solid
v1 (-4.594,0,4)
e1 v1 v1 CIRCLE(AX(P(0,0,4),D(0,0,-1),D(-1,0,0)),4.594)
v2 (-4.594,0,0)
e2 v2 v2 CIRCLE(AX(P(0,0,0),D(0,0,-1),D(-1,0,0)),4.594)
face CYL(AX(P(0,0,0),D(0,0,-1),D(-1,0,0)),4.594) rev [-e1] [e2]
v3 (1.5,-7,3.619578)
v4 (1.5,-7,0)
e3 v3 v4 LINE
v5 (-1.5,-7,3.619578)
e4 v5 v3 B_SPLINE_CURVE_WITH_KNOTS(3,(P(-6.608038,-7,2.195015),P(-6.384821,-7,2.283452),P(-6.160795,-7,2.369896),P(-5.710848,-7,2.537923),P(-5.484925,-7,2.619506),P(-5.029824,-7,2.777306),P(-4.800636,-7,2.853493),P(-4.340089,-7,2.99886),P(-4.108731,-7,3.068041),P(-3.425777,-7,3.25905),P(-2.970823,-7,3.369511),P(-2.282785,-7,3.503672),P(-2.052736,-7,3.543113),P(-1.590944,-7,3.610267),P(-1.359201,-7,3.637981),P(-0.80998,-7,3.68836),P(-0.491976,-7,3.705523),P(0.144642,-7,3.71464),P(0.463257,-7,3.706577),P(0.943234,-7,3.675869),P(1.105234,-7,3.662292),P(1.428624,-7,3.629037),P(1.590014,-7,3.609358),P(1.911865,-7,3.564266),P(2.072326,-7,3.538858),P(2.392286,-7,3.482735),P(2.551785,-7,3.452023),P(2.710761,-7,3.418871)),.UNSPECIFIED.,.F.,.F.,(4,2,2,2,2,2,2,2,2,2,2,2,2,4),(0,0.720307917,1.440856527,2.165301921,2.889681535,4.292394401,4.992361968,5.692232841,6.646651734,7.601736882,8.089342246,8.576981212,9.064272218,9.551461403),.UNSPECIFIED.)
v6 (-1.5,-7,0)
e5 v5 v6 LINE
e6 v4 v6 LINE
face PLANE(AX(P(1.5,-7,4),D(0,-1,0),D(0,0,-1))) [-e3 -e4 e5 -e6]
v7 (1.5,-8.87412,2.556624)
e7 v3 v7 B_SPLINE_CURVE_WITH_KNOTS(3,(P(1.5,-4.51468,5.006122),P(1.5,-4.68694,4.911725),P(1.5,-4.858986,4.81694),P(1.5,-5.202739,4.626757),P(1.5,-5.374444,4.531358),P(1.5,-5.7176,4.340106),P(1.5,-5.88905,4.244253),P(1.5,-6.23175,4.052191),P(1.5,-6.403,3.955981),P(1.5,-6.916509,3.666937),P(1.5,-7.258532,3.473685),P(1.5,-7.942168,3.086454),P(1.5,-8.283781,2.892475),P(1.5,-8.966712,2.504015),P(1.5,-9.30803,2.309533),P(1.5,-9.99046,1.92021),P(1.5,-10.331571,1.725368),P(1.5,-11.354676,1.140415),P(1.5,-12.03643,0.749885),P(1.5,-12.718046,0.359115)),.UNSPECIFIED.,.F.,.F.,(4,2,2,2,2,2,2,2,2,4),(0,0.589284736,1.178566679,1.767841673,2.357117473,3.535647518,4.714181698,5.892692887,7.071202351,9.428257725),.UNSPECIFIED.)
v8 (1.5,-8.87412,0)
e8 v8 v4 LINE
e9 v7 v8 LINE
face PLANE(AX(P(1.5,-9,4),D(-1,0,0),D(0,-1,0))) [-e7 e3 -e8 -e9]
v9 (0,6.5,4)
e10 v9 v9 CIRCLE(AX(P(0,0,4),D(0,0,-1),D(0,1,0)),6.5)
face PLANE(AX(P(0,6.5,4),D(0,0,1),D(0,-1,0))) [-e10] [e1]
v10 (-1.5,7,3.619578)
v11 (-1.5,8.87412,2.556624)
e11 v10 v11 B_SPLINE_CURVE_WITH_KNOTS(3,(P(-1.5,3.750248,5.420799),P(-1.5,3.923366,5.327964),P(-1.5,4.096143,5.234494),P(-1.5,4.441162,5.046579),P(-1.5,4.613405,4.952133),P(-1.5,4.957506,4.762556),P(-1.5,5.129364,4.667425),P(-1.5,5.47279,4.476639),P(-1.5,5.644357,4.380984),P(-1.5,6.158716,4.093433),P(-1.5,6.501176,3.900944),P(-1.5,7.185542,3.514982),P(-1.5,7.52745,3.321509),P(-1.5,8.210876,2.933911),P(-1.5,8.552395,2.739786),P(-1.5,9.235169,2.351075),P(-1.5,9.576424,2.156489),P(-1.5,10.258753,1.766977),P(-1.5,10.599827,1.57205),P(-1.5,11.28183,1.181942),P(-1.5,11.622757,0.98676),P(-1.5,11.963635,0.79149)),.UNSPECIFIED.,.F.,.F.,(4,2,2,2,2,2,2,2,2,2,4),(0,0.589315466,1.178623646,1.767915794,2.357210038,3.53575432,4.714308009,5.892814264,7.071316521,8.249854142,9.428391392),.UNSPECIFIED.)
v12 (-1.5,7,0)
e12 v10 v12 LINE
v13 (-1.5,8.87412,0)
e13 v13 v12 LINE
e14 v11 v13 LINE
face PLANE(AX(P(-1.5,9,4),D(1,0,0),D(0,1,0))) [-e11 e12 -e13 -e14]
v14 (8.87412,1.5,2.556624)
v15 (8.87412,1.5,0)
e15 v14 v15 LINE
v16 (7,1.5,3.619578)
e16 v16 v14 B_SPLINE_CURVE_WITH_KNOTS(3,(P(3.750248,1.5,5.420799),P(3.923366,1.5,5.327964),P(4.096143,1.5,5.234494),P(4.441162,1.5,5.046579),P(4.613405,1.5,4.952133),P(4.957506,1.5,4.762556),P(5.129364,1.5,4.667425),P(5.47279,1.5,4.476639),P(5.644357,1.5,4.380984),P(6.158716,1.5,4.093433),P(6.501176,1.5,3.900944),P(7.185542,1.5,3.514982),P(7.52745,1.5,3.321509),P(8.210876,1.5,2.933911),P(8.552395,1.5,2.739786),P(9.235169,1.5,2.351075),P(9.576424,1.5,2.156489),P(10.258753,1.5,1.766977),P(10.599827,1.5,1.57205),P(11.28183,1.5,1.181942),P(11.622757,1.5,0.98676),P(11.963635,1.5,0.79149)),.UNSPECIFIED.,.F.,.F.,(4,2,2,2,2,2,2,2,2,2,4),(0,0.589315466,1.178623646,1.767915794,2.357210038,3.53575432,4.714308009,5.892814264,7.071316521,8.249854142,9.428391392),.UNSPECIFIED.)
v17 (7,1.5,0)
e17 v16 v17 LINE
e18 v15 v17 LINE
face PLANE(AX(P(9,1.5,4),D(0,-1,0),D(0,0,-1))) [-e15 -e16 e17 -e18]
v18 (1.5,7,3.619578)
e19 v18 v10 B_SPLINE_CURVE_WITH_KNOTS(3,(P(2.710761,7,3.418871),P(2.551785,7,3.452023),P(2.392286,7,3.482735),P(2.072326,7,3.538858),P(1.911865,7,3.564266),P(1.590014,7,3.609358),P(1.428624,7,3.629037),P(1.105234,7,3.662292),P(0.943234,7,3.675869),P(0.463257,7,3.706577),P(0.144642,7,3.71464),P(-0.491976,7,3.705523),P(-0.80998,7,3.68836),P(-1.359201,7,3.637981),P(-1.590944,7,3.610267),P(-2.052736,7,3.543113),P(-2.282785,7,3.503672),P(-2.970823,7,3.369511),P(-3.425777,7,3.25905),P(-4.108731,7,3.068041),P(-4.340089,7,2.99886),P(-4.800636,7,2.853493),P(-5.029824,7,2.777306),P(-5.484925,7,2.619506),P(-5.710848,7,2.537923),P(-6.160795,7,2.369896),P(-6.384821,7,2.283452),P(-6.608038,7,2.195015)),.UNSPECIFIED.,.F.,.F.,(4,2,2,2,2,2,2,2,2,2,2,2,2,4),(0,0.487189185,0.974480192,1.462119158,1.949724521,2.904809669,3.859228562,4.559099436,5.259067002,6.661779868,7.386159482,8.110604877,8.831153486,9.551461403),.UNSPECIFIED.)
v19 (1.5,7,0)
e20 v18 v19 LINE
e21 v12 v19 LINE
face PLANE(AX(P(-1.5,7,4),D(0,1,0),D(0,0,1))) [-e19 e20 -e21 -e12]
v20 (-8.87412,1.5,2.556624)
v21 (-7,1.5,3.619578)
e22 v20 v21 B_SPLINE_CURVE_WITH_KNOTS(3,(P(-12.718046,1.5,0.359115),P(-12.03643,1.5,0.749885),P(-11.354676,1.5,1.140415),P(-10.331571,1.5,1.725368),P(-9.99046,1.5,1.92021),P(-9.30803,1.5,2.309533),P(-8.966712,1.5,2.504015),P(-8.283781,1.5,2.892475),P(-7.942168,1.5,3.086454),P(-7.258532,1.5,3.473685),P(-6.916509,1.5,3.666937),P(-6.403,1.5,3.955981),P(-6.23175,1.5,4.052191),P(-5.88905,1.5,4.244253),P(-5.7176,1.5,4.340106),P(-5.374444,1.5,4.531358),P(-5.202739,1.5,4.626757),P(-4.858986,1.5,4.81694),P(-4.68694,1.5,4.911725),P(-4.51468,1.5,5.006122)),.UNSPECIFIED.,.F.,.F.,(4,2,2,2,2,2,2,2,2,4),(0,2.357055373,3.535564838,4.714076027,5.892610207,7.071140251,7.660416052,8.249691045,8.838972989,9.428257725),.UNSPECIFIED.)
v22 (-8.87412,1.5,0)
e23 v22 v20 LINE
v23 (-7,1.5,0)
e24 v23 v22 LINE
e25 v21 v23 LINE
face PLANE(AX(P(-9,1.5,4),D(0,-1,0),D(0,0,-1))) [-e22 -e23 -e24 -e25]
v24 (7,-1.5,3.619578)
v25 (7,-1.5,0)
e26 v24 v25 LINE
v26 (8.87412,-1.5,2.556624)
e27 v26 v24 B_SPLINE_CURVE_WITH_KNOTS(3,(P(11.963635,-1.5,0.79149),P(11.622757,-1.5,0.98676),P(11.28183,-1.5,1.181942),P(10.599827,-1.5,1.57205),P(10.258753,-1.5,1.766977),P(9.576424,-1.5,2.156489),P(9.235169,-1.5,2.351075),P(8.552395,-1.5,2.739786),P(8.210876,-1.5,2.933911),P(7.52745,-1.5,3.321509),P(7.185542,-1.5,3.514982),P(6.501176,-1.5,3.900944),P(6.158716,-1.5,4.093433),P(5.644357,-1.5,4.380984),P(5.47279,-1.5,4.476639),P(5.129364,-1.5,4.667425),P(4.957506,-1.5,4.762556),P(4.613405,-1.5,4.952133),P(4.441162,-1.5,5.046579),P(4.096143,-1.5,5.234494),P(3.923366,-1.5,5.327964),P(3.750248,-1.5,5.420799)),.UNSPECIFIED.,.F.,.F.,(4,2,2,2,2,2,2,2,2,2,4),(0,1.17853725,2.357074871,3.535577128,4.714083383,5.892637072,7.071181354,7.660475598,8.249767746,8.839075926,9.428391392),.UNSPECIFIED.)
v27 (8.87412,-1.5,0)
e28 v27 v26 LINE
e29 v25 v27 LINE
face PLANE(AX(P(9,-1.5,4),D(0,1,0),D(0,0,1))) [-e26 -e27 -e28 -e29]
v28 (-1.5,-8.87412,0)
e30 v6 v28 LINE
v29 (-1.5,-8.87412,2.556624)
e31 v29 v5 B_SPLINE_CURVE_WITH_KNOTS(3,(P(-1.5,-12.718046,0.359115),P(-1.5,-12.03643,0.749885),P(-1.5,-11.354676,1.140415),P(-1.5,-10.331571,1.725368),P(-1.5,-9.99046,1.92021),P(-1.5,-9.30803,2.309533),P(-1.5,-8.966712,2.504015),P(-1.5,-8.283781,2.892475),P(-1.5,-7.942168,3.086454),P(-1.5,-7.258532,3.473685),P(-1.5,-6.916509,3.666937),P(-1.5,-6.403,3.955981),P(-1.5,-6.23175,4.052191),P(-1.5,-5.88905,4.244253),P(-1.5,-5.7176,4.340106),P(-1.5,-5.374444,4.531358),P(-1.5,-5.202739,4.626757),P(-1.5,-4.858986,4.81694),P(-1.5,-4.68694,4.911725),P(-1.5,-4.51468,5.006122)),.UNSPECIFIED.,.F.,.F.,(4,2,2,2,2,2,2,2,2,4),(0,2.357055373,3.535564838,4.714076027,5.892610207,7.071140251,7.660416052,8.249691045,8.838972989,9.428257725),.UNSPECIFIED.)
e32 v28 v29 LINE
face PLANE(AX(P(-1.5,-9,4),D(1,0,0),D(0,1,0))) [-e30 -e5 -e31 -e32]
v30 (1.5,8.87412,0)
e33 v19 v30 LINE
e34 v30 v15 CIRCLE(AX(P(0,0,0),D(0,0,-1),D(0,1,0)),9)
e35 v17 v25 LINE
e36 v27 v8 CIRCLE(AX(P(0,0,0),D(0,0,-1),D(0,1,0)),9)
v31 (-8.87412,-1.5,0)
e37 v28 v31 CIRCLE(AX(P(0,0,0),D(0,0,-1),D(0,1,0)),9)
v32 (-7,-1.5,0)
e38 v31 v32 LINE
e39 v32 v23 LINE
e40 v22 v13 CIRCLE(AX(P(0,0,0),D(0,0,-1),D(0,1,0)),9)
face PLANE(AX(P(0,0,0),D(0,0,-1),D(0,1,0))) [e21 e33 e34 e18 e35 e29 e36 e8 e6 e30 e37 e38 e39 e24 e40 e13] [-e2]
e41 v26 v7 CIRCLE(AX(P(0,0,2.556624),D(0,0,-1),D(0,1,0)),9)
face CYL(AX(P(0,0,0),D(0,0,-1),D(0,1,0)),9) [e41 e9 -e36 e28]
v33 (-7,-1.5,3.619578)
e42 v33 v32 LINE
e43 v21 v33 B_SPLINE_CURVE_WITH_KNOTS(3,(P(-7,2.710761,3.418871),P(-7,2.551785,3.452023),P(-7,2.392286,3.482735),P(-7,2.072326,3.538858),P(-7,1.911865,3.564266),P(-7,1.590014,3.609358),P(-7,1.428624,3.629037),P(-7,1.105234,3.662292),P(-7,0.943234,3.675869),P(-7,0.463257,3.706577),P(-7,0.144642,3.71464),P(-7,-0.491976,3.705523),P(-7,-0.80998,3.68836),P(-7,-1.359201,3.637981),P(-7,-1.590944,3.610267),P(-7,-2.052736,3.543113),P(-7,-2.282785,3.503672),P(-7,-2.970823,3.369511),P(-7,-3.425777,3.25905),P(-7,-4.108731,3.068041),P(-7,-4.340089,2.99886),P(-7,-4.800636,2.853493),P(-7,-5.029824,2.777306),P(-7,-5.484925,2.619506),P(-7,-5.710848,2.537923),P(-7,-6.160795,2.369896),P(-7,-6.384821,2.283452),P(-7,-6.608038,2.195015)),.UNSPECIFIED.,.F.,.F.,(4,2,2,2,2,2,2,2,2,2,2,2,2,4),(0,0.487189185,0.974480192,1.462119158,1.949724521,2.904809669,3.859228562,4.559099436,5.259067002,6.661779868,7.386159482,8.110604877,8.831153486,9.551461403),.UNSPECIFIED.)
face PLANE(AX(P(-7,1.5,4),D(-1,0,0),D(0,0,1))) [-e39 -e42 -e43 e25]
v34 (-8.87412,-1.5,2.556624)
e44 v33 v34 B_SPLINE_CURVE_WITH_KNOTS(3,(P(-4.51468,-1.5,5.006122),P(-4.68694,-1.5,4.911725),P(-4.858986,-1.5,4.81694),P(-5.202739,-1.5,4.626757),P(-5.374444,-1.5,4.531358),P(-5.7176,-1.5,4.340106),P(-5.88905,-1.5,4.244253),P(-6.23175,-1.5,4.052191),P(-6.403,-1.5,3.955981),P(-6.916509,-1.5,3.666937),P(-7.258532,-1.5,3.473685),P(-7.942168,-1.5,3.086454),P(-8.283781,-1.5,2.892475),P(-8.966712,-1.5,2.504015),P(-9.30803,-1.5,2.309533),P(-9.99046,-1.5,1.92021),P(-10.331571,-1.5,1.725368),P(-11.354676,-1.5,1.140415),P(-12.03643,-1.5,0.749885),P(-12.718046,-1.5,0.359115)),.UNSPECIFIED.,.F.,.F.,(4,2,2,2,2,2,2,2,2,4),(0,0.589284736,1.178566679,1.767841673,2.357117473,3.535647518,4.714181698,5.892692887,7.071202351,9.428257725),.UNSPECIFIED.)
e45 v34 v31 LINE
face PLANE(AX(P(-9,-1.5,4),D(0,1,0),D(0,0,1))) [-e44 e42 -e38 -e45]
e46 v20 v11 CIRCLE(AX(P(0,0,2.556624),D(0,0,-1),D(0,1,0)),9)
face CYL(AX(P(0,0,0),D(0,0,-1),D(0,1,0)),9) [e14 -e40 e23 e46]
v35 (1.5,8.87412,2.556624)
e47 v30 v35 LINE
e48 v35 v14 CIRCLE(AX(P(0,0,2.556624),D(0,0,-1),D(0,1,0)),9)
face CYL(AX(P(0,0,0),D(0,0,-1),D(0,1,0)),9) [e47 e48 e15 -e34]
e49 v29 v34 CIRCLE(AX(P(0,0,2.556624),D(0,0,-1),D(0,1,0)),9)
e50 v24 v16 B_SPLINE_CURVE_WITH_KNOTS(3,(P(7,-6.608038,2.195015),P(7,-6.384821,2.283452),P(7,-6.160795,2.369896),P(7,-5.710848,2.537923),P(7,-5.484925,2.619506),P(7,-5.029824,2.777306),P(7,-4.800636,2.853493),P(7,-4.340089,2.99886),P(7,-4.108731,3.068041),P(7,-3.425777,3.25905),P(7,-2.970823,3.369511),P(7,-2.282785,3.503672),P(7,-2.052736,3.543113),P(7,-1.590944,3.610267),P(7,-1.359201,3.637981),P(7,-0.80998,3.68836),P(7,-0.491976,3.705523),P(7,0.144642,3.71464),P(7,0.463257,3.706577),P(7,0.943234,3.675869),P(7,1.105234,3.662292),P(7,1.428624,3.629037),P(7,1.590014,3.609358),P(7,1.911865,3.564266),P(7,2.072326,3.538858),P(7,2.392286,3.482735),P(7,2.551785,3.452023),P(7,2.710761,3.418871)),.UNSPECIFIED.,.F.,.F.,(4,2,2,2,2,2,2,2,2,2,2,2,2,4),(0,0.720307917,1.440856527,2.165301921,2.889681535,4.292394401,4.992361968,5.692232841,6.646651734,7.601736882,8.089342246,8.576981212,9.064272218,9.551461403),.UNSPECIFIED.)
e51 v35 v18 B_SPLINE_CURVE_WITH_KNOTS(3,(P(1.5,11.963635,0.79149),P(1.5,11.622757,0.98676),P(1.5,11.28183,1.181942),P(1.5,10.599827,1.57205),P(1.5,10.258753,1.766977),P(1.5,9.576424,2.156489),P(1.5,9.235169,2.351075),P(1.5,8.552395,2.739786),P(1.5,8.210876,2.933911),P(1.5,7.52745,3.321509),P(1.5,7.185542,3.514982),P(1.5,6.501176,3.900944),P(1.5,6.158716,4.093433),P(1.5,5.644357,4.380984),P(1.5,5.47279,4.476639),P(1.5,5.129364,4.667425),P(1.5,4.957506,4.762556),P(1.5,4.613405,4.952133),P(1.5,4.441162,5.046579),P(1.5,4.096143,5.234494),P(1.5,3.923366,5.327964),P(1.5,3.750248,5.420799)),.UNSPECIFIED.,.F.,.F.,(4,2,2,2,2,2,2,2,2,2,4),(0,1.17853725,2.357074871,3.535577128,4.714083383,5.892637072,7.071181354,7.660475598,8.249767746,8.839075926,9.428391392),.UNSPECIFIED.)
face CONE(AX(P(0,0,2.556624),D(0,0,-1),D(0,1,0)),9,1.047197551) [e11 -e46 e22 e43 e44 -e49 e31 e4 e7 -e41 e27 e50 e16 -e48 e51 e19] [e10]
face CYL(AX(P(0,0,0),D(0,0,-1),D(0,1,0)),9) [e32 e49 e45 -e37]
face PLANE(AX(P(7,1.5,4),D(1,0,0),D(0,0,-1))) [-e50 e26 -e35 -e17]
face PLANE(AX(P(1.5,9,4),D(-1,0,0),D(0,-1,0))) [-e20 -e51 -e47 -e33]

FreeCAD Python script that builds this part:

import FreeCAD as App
import Part
import Sketcher

V = App.Vector
Q = App.Units.Quantity

doc = App.newDocument("Part")
params = doc.addObject("Spreadsheet::Sheet", "Params")
for row, (alias, value) in enumerate([
    ("sketch1_width", "9 mm"),
    ("sketch1_height", "4 mm"),
    ("sketch1_width2", "6.5 mm"),
    ("revolution_angle", "360 deg"),
    ("hole_diameter", "9.188 mm"),
    ("sketch3_width", "3 mm"),
    ("sketch3_width2", "2 mm"),
], start=1):
    params.set(f"A{row}", alias)
    params.set(f"B{row}", "=" + value)
    params.setAlias(f"B{row}", alias)

body = doc.addObject("PartDesign::Body", "Body")

# Sketch on YZ plane
sketch1 = body.newObject("Sketcher::SketchObject", "Sketch")
sketch1.AttachmentSupport = (doc.getObject("YZ_Plane"), [""])
sketch1.MapMode = "FlatFace"
sketch1.addGeometry(Part.LineSegment(V(9, 0, 0), V(9, 2.6, 0)), False)
sketch1.addGeometry(Part.LineSegment(V(9, 2.6, 0), V(6.5, 4, 0)), False)
sketch1.addGeometry(Part.LineSegment(V(6.5, 4, 0), V(0, 4, 0)), False)
sketch1.addGeometry(Part.LineSegment(V(0, 4, 0), V(0, 0, 0)), False)
sketch1.addGeometry(Part.LineSegment(V(0, 0, 0), V(9, 0, 0)), False)
sketch1.addConstraint(Sketcher.Constraint("Coincident", 0, 2, 1, 1))
sketch1.addConstraint(Sketcher.Constraint("Coincident", 1, 2, 2, 1))
sketch1.addConstraint(Sketcher.Constraint("Coincident", 2, 2, 3, 1))
sketch1.addConstraint(Sketcher.Constraint("Coincident", 3, 2, 4, 1))
sketch1.addConstraint(Sketcher.Constraint("Coincident", 4, 2, 0, 1))
sketch1.addConstraint(Sketcher.Constraint("Vertical", 0))
sketch1.addConstraint(Sketcher.Constraint("Horizontal", 2))
sketch1.addConstraint(Sketcher.Constraint("Vertical", 3))
sketch1.addConstraint(Sketcher.Constraint("Horizontal", 4))
sketch1.addConstraint(Sketcher.Constraint("Coincident", 3, 2, -1, 1))
sketch1.addConstraint(Sketcher.Constraint("DistanceX", 4, 1, 4, 2, Q("9 mm")))
sketch1.addConstraint(Sketcher.Constraint("DistanceY", 3, 2, 3, 1, Q("4 mm")))
sketch1.addConstraint(Sketcher.Constraint("Angle", 1, Q("150 deg")))
sketch1.addConstraint(Sketcher.Constraint("DistanceX", 2, 2, 2, 1, Q("6.5 mm")))
sketch1.setExpression("Constraints[10]", "Params.sketch1_width")
sketch1.setExpression("Constraints[11]", "Params.sketch1_height")
sketch1.setExpression("Constraints[13]", "Params.sketch1_width2")
revolution = body.newObject("PartDesign::Revolution", "Revolution")
revolution.Profile = sketch1
revolution.ReferenceAxis = (sketch1, ["V_Axis"])
revolution.setExpression("Angle", "Params.revolution_angle")

# Sketch on XY plane
sketch2 = body.newObject("Sketcher::SketchObject", "Sketch001")
sketch2.AttachmentSupport = (doc.getObject("XY_Plane"), [""])
sketch2.MapMode = "FlatFace"
sketch2.addGeometry(Part.Circle(V(0, 0, 0), V(0, 0, 1), 4.6), False)
sketch2.addConstraint(Sketcher.Constraint("Coincident", 0, 3, -1, 1))
sketch2.addConstraint(Sketcher.Constraint("Diameter", 0, Q("9.188 mm")))
doc.recompute()
hole = body.newObject("PartDesign::Hole", "Hole")
hole.Profile = sketch2
hole.ThreadType = "None"
hole.setExpression("Diameter", "Params.hole_diameter")
hole.DepthType = "ThroughAll"
hole.Reversed = True

# Sketch on XY plane
sketch3 = body.newObject("Sketcher::SketchObject", "Sketch002")
sketch3.AttachmentSupport = (doc.getObject("XY_Plane"), [""])
sketch3.MapMode = "FlatFace"
sketch3.addGeometry(Part.LineSegment(V(-1.5, 9, 0), V(-1.5, 7, 0)), False)
sketch3.addGeometry(Part.LineSegment(V(-1.5, 7, 0), V(1.5, 7, 0)), False)
sketch3.addGeometry(Part.LineSegment(V(1.5, 7, 0), V(1.5, 9, 0)), False)
sketch3.addGeometry(Part.LineSegment(V(1.5, 9, 0), V(-1.5, 9, 0)), False)
sketch3.addGeometry(Part.LineSegment(V(-9, 1.5, 0), V(-9, -1.5, 0)), False)
sketch3.addGeometry(Part.LineSegment(V(-9, -1.5, 0), V(-7, -1.5, 0)), False)
sketch3.addGeometry(Part.LineSegment(V(-7, -1.5, 0), V(-7, 1.5, 0)), False)
sketch3.addGeometry(Part.LineSegment(V(-7, 1.5, 0), V(-9, 1.5, 0)), False)
sketch3.addGeometry(Part.LineSegment(V(7, 1.5, 0), V(7, -1.5, 0)), False)
sketch3.addGeometry(Part.LineSegment(V(7, -1.5, 0), V(9, -1.5, 0)), False)
sketch3.addGeometry(Part.LineSegment(V(9, -1.5, 0), V(9, 1.5, 0)), False)
sketch3.addGeometry(Part.LineSegment(V(9, 1.5, 0), V(7, 1.5, 0)), False)
sketch3.addGeometry(Part.LineSegment(V(-1.5, -7, 0), V(-1.5, -9, 0)), False)
sketch3.addGeometry(Part.LineSegment(V(-1.5, -9, 0), V(1.5, -9, 0)), False)
sketch3.addGeometry(Part.LineSegment(V(1.5, -9, 0), V(1.5, -7, 0)), False)
sketch3.addGeometry(Part.LineSegment(V(1.5, -7, 0), V(-1.5, -7, 0)), False)
sketch3.addConstraint(Sketcher.Constraint("Coincident", 0, 2, 1, 1))
sketch3.addConstraint(Sketcher.Constraint("Coincident", 1, 2, 2, 1))
sketch3.addConstraint(Sketcher.Constraint("Coincident", 2, 2, 3, 1))
sketch3.addConstraint(Sketcher.Constraint("Coincident", 3, 2, 0, 1))
sketch3.addConstraint(Sketcher.Constraint("Coincident", 4, 2, 5, 1))
sketch3.addConstraint(Sketcher.Constraint("Coincident", 5, 2, 6, 1))
sketch3.addConstraint(Sketcher.Constraint("Coincident", 6, 2, 7, 1))
sketch3.addConstraint(Sketcher.Constraint("Coincident", 7, 2, 4, 1))
sketch3.addConstraint(Sketcher.Constraint("Coincident", 8, 2, 9, 1))
sketch3.addConstraint(Sketcher.Constraint("Coincident", 9, 2, 10, 1))
sketch3.addConstraint(Sketcher.Constraint("Coincident", 10, 2, 11, 1))
sketch3.addConstraint(Sketcher.Constraint("Coincident", 11, 2, 8, 1))
sketch3.addConstraint(Sketcher.Constraint("Coincident", 12, 2, 13, 1))
sketch3.addConstraint(Sketcher.Constraint("Coincident", 13, 2, 14, 1))
sketch3.addConstraint(Sketcher.Constraint("Coincident", 14, 2, 15, 1))
sketch3.addConstraint(Sketcher.Constraint("Coincident", 15, 2, 12, 1))
sketch3.addConstraint(Sketcher.Constraint("Vertical", 0))
sketch3.addConstraint(Sketcher.Constraint("Horizontal", 1))
sketch3.addConstraint(Sketcher.Constraint("Vertical", 2))
sketch3.addConstraint(Sketcher.Constraint("Horizontal", 3))
sketch3.addConstraint(Sketcher.Constraint("Vertical", 4))
sketch3.addConstraint(Sketcher.Constraint("Horizontal", 5))
sketch3.addConstraint(Sketcher.Constraint("Vertical", 6))
sketch3.addConstraint(Sketcher.Constraint("Horizontal", 7))
sketch3.addConstraint(Sketcher.Constraint("Vertical", 8))
sketch3.addConstraint(Sketcher.Constraint("Horizontal", 9))
sketch3.addConstraint(Sketcher.Constraint("Vertical", 10))
sketch3.addConstraint(Sketcher.Constraint("Horizontal", 11))
sketch3.addConstraint(Sketcher.Constraint("Vertical", 12))
sketch3.addConstraint(Sketcher.Constraint("Horizontal", 13))
sketch3.addConstraint(Sketcher.Constraint("Vertical", 14))
sketch3.addConstraint(Sketcher.Constraint("Horizontal", 15))
sketch3.addConstraint(Sketcher.Constraint("Symmetric", 6, 2, 8, 2, -1, 1))
sketch3.addConstraint(Sketcher.Constraint("Symmetric", 4, 2, 10, 2, -1, 1))
sketch3.addConstraint(Sketcher.Constraint("Symmetric", 2, 2, 12, 2, -1, 1))
sketch3.addConstraint(Sketcher.Constraint("Symmetric", 0, 2, 14, 2, -1, 1))
sketch3.addConstraint(Sketcher.Constraint("Horizontal", 5, 2, 8, 2))
sketch3.addConstraint(Sketcher.Constraint("Vertical", 3, 2, 12, 2))
sketch3.addConstraint(Sketcher.Constraint("Equal", 11, 0))
sketch3.addConstraint(Sketcher.Constraint("Equal", 15, 4))
sketch3.addConstraint(Sketcher.Constraint("DistanceX", 1, 1, 1, 2, Q("3 mm")))
sketch3.addConstraint(Sketcher.Constraint("DistanceX", 5, 1, 5, 2, Q("2 mm")))
sketch3.addConstraint(Sketcher.Constraint("DistanceY", -1, 1, 0, 2, Q("7 mm")))
sketch3.addConstraint(Sketcher.Constraint("DistanceX", 4, 2, -1, 1, Q("9 mm")))
sketch3.setExpression("Constraints[40]", "Params.sketch3_width")
sketch3.setExpression("Constraints[41]", "Params.sketch3_width2")
pocket1 = body.newObject("PartDesign::Pocket", "Pocket")
pocket1.Profile = sketch3
pocket1.Type = "ThroughAll"
pocket1.Reversed = True

doc.recompute()
